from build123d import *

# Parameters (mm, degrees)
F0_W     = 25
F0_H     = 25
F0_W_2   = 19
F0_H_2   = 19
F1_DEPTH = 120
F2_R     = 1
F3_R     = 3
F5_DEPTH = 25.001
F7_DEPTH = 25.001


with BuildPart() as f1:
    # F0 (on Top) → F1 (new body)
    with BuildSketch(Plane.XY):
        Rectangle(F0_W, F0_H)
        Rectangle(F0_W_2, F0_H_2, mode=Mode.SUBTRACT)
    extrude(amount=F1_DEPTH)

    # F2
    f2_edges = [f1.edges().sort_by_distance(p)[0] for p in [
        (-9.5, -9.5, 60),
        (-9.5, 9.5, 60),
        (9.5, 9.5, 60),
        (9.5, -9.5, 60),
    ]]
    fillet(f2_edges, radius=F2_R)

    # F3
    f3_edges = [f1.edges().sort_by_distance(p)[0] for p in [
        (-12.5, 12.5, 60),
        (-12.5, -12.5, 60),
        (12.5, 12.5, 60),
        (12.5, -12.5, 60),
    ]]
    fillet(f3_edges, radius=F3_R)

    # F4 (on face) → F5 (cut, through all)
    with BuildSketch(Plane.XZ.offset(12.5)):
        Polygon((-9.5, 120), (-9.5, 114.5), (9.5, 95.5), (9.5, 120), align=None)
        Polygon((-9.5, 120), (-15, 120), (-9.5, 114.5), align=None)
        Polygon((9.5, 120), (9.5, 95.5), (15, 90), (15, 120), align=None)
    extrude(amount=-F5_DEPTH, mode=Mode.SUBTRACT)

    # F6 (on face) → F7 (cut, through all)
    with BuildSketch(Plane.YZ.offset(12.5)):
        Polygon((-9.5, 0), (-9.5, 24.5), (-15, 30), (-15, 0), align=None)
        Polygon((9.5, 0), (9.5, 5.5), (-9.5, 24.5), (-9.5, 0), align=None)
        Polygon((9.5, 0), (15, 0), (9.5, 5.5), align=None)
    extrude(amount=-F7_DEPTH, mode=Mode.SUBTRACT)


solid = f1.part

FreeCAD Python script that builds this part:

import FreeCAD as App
import Part
import Sketcher

V = App.Vector
Q = App.Units.Quantity


def edges_at(feature, points):
    """Names of the edges that pass closest to the given points."""
    edges = feature.Shape.Edges
    near = lambda p: min(range(len(edges)), key=lambda i: edges[i].distToShape(Part.Vertex(*p))[0])
    return sorted({f"Edge{near(p) + 1}" for p in points})


def add_polygon(sketch, points):
    """Adds a closed chain of lines whose ends are joined by coincident constraints."""
    first, n = sketch.GeometryCount, len(points)
    for a, b in zip(points, points[1:] + points[:1]):
        sketch.addGeometry(Part.LineSegment(App.Vector(*a, 0), App.Vector(*b, 0)), False)
    for i in range(n):
        sketch.addConstraint(Sketcher.Constraint("Coincident", first + i, 2, first + (i + 1) % n, 1))

doc = App.newDocument("Part")
body = doc.addObject("PartDesign::Body", "Body")

sketch1 = doc.addObject("Sketcher::SketchObject", "Sketch")
body.addObject(sketch1)
sketch1.AttachmentSupport = (doc.XY_Plane, [""])
sketch1.MapMode = "FlatFace"
add_polygon(sketch1, [(-12, 12), (-12, -12), (12, -12), (12, 12)])
add_polygon(sketch1, [(10, -10), (-10, -10), (-10, 10), (10, 10)])
sketch1.addConstraint(Sketcher.Constraint("Vertical", 0))
sketch1.addConstraint(Sketcher.Constraint("Horizontal", 1))
sketch1.addConstraint(Sketcher.Constraint("Vertical", 2))
sketch1.addConstraint(Sketcher.Constraint("Horizontal", 3))
sketch1.addConstraint(Sketcher.Constraint("Horizontal", 4))
sketch1.addConstraint(Sketcher.Constraint("Vertical", 5))
sketch1.addConstraint(Sketcher.Constraint("Horizontal", 6))
sketch1.addConstraint(Sketcher.Constraint("Vertical", 7))
sketch1.addConstraint(Sketcher.Constraint("Symmetric", 0, 2, 2, 2, -1, 1))
sketch1.addConstraint(Sketcher.Constraint("Symmetric", 4, 2, 6, 2, -1, 1))
sketch1.addConstraint(Sketcher.Constraint("Equal", 3, 0))
sketch1.addConstraint(Sketcher.Constraint("Equal", 6, 5))
sketch1.addConstraint(Sketcher.Constraint("DistanceX", 1, 1, 1, 2, Q("25 mm")))
sketch1.addConstraint(Sketcher.Constraint("DistanceX", 4, 2, 4, 1, Q("19 mm")))
pad1 = doc.addObject("PartDesign::Pad", "Pad")
body.addObject(pad1)
pad1.Profile = sketch1
pad1.Length = 120
doc.recompute()

fillet = doc.addObject("PartDesign::Fillet", "Fillet")
body.addObject(fillet)
fillet.Base = (pad1, edges_at(pad1, [
    (-9.5, -9.5, 60),
    (-9.5, 9.5, 60),
    (9.5, 9.5, 60),
    (9.5, -9.5, 60),
]))
fillet.Radius = 1
doc.recompute()

fillet2 = doc.addObject("PartDesign::Fillet", "Fillet001")
body.addObject(fillet2)
fillet2.Base = (fillet, edges_at(fillet, [
    (-12.5, 12.5, 60),
    (-12.5, -12.5, 60),
    (12.5, 12.5, 60),
    (12.5, -12.5, 60),
]))
fillet2.Radius = 3

sketch2 = doc.addObject("Sketcher::SketchObject", "Sketch001")
body.addObject(sketch2)
sketch2.AttachmentSupport = (doc.XZ_Plane, [""])
sketch2.MapMode = "FlatFace"
sketch2.AttachmentOffset = App.Placement(V(0, 0, 12.5), App.Rotation())
add_polygon(sketch2, [(-15, 120), (15, 90), (15, 120)])
sketch2.addConstraint(Sketcher.Constraint("Vertical", 1))
sketch2.addConstraint(Sketcher.Constraint("Horizontal", 2))
sketch2.addConstraint(Sketcher.Constraint("Equal", 2, 1))
sketch2.addConstraint(Sketcher.Constraint("DistanceX", 2, 2, 2, 1, Q("30 mm")))
sketch2.addConstraint(Sketcher.Constraint("DistanceX", -1, 1, 0, 2, Q("15 mm")))
sketch2.addConstraint(Sketcher.Constraint("DistanceY", -1, 1, 0, 2, Q("90 mm")))
pocket1 = doc.addObject("PartDesign::Pocket", "Pocket")
body.addObject(pocket1)
pocket1.Profile = sketch2
pocket1.Type = "ThroughAll"

sketch3 = doc.addObject("Sketcher::SketchObject", "Sketch002")
body.addObject(sketch3)
sketch3.AttachmentSupport = (doc.YZ_Plane, [""])
sketch3.MapMode = "FlatFace"
sketch3.AttachmentOffset = App.Placement(V(0, 0, 12.5), App.Rotation())
add_polygon(sketch3, [(-15, 30), (-15, 0), (15, 0)])
sketch3.addConstraint(Sketcher.Constraint("Vertical", 0))
sketch3.addConstraint(Sketcher.Constraint("Horizontal", 1))
sketch3.addConstraint(Sketcher.Constraint("Symmetric", 0, 2, 1, 2, -1, 1))
sketch3.addConstraint(Sketcher.Constraint("Equal", 1, 0))
sketch3.addConstraint(Sketcher.Constraint("DistanceX", 1, 1, 1, 2, Q("30 mm")))
pocket2 = doc.addObject("PartDesign::Pocket", "Pocket001")
body.addObject(pocket2)
pocket2.Profile = sketch3
pocket2.Type = "ThroughAll"

doc.recompute()
